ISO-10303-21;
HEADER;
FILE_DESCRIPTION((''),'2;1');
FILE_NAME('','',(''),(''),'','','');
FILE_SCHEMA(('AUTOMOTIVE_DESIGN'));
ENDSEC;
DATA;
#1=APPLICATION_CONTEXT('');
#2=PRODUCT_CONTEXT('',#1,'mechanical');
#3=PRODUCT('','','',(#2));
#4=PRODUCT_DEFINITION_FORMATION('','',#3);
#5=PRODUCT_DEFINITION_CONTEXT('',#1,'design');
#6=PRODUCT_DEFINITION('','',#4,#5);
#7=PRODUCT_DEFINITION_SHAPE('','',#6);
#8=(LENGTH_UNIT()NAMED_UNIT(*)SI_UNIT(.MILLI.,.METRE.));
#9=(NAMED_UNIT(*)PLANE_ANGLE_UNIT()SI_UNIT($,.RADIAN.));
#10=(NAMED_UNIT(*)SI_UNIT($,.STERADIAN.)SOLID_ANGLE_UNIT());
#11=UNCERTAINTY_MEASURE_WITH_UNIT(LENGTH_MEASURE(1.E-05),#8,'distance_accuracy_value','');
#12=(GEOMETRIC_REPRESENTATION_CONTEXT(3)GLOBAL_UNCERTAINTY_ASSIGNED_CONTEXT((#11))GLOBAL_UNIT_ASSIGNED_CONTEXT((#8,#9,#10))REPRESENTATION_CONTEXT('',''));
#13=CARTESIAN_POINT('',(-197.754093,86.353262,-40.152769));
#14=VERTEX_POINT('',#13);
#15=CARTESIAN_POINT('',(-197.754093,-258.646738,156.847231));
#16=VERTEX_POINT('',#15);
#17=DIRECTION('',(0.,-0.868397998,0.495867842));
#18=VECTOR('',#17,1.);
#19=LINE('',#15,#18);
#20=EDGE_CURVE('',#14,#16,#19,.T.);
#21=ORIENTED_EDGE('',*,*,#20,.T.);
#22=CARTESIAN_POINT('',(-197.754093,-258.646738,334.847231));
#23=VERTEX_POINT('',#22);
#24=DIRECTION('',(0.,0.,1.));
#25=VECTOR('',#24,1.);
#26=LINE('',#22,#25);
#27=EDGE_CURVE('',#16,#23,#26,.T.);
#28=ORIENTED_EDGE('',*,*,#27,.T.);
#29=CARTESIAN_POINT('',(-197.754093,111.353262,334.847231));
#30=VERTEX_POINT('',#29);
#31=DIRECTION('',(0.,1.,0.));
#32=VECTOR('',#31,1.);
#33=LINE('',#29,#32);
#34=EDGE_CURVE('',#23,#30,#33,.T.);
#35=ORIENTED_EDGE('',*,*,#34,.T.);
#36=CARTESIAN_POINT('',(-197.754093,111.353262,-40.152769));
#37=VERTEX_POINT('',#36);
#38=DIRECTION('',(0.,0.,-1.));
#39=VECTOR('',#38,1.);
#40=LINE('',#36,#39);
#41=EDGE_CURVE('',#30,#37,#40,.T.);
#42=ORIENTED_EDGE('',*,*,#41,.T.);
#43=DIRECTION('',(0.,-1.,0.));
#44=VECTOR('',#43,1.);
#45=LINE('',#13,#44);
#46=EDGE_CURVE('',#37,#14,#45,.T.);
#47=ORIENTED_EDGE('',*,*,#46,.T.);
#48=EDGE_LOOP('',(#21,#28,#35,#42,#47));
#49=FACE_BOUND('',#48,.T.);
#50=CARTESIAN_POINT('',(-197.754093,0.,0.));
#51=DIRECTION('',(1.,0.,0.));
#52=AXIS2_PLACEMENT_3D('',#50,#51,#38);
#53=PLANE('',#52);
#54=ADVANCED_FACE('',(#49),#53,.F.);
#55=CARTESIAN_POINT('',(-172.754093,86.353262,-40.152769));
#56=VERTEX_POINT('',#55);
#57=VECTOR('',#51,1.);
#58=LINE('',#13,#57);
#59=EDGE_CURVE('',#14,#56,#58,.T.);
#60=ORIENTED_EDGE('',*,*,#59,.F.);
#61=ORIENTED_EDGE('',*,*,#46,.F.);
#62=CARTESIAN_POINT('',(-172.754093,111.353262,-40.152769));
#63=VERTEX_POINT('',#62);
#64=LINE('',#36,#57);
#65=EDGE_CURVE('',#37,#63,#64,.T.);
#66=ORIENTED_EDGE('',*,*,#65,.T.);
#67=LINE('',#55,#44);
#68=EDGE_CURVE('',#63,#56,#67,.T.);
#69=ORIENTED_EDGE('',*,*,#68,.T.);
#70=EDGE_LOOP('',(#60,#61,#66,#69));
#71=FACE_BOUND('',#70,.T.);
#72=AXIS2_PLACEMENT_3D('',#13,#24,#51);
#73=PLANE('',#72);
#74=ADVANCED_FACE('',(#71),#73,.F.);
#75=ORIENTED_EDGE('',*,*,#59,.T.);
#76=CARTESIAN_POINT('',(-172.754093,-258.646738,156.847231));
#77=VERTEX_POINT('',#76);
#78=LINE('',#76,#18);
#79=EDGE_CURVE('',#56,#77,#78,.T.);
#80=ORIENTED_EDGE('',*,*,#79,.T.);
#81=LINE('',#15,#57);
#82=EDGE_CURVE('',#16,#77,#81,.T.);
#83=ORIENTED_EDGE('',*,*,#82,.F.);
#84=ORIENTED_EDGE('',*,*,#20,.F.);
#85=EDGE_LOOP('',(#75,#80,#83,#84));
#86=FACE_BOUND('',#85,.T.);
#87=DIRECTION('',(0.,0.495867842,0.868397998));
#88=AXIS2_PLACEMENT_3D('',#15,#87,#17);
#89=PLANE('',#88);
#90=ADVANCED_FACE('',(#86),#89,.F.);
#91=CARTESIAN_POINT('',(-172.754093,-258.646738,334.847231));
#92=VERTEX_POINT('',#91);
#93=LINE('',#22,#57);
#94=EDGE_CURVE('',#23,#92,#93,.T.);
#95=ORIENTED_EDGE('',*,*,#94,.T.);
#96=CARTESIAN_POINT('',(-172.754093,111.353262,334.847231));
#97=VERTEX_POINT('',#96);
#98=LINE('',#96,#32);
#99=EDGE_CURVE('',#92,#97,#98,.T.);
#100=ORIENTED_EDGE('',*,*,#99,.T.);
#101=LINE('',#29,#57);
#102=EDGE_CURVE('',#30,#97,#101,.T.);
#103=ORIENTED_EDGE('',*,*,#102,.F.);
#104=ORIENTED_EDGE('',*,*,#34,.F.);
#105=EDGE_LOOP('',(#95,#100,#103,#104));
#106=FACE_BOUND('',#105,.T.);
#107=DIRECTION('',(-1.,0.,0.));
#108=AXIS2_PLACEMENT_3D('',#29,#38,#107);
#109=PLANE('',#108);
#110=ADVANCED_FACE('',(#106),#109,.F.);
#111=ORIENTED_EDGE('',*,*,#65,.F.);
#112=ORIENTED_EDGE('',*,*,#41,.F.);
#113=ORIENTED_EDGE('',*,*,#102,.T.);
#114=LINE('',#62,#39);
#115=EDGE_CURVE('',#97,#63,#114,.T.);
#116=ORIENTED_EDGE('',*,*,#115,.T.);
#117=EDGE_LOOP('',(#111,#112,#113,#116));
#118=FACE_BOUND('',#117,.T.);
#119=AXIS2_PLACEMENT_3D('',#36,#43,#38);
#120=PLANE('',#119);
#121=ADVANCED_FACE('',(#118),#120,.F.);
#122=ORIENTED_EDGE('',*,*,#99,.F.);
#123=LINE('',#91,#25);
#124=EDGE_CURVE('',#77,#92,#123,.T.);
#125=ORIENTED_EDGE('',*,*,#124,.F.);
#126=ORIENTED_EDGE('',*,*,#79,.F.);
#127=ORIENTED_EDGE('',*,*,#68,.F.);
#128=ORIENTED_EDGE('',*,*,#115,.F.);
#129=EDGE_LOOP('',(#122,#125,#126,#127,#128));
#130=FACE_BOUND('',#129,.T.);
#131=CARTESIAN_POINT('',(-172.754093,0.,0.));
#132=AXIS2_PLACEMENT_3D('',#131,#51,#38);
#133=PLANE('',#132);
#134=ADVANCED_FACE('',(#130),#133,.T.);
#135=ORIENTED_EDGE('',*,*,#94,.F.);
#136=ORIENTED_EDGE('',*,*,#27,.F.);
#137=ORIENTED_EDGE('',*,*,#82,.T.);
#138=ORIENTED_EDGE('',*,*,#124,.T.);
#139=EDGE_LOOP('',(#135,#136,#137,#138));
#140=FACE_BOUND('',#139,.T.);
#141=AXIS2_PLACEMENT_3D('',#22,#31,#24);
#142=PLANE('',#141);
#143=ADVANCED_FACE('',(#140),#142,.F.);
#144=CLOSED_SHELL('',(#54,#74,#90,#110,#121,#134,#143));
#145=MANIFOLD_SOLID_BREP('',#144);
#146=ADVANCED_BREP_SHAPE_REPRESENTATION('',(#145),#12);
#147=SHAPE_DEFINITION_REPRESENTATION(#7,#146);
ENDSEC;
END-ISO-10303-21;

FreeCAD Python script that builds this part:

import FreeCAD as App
import Part
import Sketcher
Q = App.Units.Quantity


def add_polygon(sketch, points):
    """Adds a closed chain of lines whose ends are joined by coincident constraints."""
    first, n = sketch.GeometryCount, len(points)
    for a, b in zip(points, points[1:] + points[:1]):
        sketch.addGeometry(Part.LineSegment(App.Vector(*a, 0), App.Vector(*b, 0)), False)
    for i in range(n):
        sketch.addConstraint(Sketcher.Constraint("Coincident", first + i, 2, first + (i + 1) % n, 1))

doc = App.newDocument("Part")
body = doc.addObject("PartDesign::Body", "Body")

# Sketch on YZ plane
sketch1 = body.newObject("Sketcher::SketchObject", "Sketch")
sketch1.AttachmentSupport = (doc.getObject("YZ_Plane"), [""])
sketch1.MapMode = "FlatFace"
sketch1.AttachmentOffset = App.Placement(App.Vector(0, 0, -192.754093), App.Rotation())
add_polygon(sketch1, [(-258.646738, 334.847231), (111.353262, 334.847231), (111.353262, -40.152769), (86.353262, -40.152769), (-258.646738, 156.847231)])  # lines 0-4
sketch1.addConstraint([
    Sketcher.Constraint("Horizontal", 0),
    Sketcher.Constraint("Vertical", 1),
    Sketcher.Constraint("Horizontal", 2),
    Sketcher.Constraint("Vertical", 4),
    Sketcher.Constraint("DistanceX", 0, 1, 0, 2, Q("370 mm")),
    Sketcher.Constraint("DistanceX", 2, 2, 2, 1, Q("25 mm")),
    Sketcher.Constraint("DistanceY", 1, 2, 1, 1, Q("375 mm")),
    Sketcher.Constraint("DistanceY", 4, 1, 4, 2, Q("178 mm")),
    Sketcher.Constraint("DistanceY", -1, 1, 0, 2, Q("334.847231 mm")),
    Sketcher.Constraint("DistanceX", -1, 1, 0, 2, Q("111.353262 mm")),
])
pad1 = body.newObject("PartDesign::Pad", "Pad")
pad1.Profile = sketch1
pad1.Type = "TwoLengths"
pad1.Length = 5
pad1.Length2 = 20
pad1.Reversed = True

doc.recompute()
